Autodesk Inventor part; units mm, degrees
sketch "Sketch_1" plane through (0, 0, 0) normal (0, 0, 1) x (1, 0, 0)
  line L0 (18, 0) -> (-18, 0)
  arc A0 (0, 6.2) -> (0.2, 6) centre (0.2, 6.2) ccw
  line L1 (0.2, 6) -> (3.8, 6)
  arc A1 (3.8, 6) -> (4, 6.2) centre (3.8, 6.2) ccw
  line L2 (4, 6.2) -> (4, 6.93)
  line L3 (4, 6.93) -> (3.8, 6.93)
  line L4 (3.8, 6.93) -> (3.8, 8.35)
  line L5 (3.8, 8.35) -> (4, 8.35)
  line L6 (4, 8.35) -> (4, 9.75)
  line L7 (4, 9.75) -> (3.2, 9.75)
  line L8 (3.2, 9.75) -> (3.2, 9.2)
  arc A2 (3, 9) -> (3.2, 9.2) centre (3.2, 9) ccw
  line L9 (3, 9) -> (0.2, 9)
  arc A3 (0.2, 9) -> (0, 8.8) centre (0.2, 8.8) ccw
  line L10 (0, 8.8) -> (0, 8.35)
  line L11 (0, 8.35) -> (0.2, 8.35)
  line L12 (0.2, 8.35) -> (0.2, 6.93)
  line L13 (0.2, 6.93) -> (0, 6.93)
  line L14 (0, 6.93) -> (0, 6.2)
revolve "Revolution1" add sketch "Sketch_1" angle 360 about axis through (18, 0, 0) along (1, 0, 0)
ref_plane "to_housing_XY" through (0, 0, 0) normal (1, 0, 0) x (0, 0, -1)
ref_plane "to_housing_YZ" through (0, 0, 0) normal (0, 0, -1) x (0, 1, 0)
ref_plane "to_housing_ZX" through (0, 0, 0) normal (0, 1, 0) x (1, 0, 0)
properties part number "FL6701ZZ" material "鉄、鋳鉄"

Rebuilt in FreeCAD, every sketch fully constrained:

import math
import FreeCAD as App
import Part
import Sketcher
from FreeCAD import Vector
Q = App.Units.Quantity

doc = App.newDocument("Part")
body = doc.addObject("PartDesign::Body", "Body")

# Sketch on XY plane
sketch1 = body.newObject("Sketcher::SketchObject", "Sketch")
sketch1.AttachmentSupport = (doc.getObject("XY_Plane"), [""])
sketch1.MapMode = "FlatFace"
sketch1.addGeometry([
    Part.LineSegment(Vector(0, 6.93, 0), Vector(0, 6.2, 0)),  # 0
    Part.ArcOfCircle(Part.Circle(Vector(0.2, 6.2, 0), Vector(0, 0, 1), 0.2), math.radians(180), math.radians(270)),  # 1
    Part.LineSegment(Vector(0.2, 6, 0), Vector(3.8, 6, 0)),  # 2
    Part.ArcOfCircle(Part.Circle(Vector(3.8, 6.2, 0), Vector(0, 0, 1), 0.2), math.radians(-90), math.radians(0)),  # 3
    Part.LineSegment(Vector(4, 6.2, 0), Vector(4, 6.93, 0)),  # 4
    Part.LineSegment(Vector(4, 6.93, 0), Vector(3.8, 6.93, 0)),  # 5
    Part.LineSegment(Vector(3.8, 6.93, 0), Vector(3.8, 8.35, 0)),  # 6
    Part.LineSegment(Vector(3.8, 8.35, 0), Vector(4, 8.35, 0)),  # 7
    Part.LineSegment(Vector(4, 8.35, 0), Vector(4, 9.75, 0)),  # 8
    Part.LineSegment(Vector(4, 9.75, 0), Vector(3.2, 9.75, 0)),  # 9
    Part.LineSegment(Vector(3.2, 9.75, 0), Vector(3.2, 9.2, 0)),  # 10
    Part.ArcOfCircle(Part.Circle(Vector(3.2, 9, 0), Vector(0, 0, 1), 0.2), math.radians(180), math.radians(450)),  # 11
    Part.LineSegment(Vector(3, 9, 0), Vector(0.2, 9, 0)),  # 12
    Part.ArcOfCircle(Part.Circle(Vector(0.2, 8.8, 0), Vector(0, 0, 1), 0.2), math.radians(90), math.radians(180)),  # 13
    Part.LineSegment(Vector(0, 8.8, 0), Vector(0, 8.35, 0)),  # 14
    Part.LineSegment(Vector(0, 8.35, 0), Vector(0.2, 8.35, 0)),  # 15
    Part.LineSegment(Vector(0.2, 8.35, 0), Vector(0.2, 6.93, 0)),  # 16
    Part.LineSegment(Vector(0.2, 6.93, 0), Vector(0, 6.93, 0)),  # 17
], False)
sketch1.addConstraint([
    Sketcher.Constraint("Tangent", 0, 2, 1, 1),
    Sketcher.Constraint("Tangent", 1, 2, 2, 1),
    Sketcher.Constraint("Tangent", 2, 2, 3, 1),
    Sketcher.Constraint("Tangent", 3, 2, 4, 1),
    Sketcher.Constraint("Coincident", 4, 2, 5, 1),
    Sketcher.Constraint("Coincident", 5, 2, 6, 1),
    Sketcher.Constraint("Coincident", 6, 2, 7, 1),
    Sketcher.Constraint("Coincident", 7, 2, 8, 1),
    Sketcher.Constraint("Coincident", 8, 2, 9, 1),
    Sketcher.Constraint("Coincident", 9, 2, 10, 1),
    Sketcher.Constraint("Coincident", 10, 2, 11, 2),
    Sketcher.Constraint("Coincident", 11, 1, 12, 1),
    Sketcher.Constraint("Tangent", 12, 2, 13, 1),
    Sketcher.Constraint("Tangent", 13, 2, 14, 1),
    Sketcher.Constraint("Coincident", 14, 2, 15, 1),
    Sketcher.Constraint("Coincident", 15, 2, 16, 1),
    Sketcher.Constraint("Coincident", 16, 2, 17, 1),
    Sketcher.Constraint("Coincident", 17, 2, 0, 1),
    Sketcher.Constraint("Vertical", 0),
    Sketcher.Constraint("Horizontal", 2),
    Sketcher.Constraint("Vertical", 4),
    Sketcher.Constraint("Horizontal", 5),
    Sketcher.Constraint("Vertical", 6),
    Sketcher.Constraint("Horizontal", 7),
    Sketcher.Constraint("Vertical", 8),
    Sketcher.Constraint("Horizontal", 9),
    Sketcher.Constraint("Vertical", 10),
    Sketcher.Constraint("Horizontal", 12),
    Sketcher.Constraint("Vertical", 14),
    Sketcher.Constraint("Horizontal", 15),
    Sketcher.Constraint("Vertical", 16),
    Sketcher.Constraint("Horizontal", 17),
    Sketcher.Constraint("Equal", 1, 3),
    Sketcher.Constraint("Equal", 3, 11),
    Sketcher.Constraint("Equal", 11, 13),
    Sketcher.Constraint("PointOnObject", 0, 2, -2),
    Sketcher.Constraint("PointOnObject", 13, 2, -2),
    Sketcher.Constraint("Horizontal", 7, 2, 14, 2),
    Sketcher.Constraint("Horizontal", 5, 2, 16, 2),
    Sketcher.Constraint("Vertical", 2, 2, 5, 2),
    Sketcher.Constraint("Vertical", 4, 2, 7, 2),
    Sketcher.Constraint("Vertical", 11, 3, 9, 2),
    Sketcher.Constraint("Vertical", 12, 2, 15, 2),
    Sketcher.Constraint("Radius", 1, Q("0.2 mm")),
    Sketcher.Constraint("DistanceX", 2, 1, 2, 2, Q("3.6 mm")),
    Sketcher.Constraint("DistanceX", 9, 2, 9, 1, Q("0.8 mm")),
    Sketcher.Constraint("DistanceY", 8, 1, 8, 2, Q("1.4 mm")),
    Sketcher.Constraint("DistanceY", -1, 1, 11, 3, Q("9 mm")),
    Sketcher.Constraint("DistanceY", -1, 1, 1, 2, Q("6 mm")),
    Sketcher.Constraint("DistanceY", -1, 1, 11, 1, Q("9 mm")),
    Sketcher.Constraint("DistanceY", 0, 2, 0, 1, Q("0.73 mm")),
    Sketcher.Constraint("DistanceY", 6, 1, 6, 2, Q("1.42 mm")),
])
revolution = body.newObject("PartDesign::Revolution", "Revolution")
revolution.Profile = sketch1
revolution.ReferenceAxis = (sketch1, ["H_Axis"])
revolution.Angle = 360

doc.recompute()
